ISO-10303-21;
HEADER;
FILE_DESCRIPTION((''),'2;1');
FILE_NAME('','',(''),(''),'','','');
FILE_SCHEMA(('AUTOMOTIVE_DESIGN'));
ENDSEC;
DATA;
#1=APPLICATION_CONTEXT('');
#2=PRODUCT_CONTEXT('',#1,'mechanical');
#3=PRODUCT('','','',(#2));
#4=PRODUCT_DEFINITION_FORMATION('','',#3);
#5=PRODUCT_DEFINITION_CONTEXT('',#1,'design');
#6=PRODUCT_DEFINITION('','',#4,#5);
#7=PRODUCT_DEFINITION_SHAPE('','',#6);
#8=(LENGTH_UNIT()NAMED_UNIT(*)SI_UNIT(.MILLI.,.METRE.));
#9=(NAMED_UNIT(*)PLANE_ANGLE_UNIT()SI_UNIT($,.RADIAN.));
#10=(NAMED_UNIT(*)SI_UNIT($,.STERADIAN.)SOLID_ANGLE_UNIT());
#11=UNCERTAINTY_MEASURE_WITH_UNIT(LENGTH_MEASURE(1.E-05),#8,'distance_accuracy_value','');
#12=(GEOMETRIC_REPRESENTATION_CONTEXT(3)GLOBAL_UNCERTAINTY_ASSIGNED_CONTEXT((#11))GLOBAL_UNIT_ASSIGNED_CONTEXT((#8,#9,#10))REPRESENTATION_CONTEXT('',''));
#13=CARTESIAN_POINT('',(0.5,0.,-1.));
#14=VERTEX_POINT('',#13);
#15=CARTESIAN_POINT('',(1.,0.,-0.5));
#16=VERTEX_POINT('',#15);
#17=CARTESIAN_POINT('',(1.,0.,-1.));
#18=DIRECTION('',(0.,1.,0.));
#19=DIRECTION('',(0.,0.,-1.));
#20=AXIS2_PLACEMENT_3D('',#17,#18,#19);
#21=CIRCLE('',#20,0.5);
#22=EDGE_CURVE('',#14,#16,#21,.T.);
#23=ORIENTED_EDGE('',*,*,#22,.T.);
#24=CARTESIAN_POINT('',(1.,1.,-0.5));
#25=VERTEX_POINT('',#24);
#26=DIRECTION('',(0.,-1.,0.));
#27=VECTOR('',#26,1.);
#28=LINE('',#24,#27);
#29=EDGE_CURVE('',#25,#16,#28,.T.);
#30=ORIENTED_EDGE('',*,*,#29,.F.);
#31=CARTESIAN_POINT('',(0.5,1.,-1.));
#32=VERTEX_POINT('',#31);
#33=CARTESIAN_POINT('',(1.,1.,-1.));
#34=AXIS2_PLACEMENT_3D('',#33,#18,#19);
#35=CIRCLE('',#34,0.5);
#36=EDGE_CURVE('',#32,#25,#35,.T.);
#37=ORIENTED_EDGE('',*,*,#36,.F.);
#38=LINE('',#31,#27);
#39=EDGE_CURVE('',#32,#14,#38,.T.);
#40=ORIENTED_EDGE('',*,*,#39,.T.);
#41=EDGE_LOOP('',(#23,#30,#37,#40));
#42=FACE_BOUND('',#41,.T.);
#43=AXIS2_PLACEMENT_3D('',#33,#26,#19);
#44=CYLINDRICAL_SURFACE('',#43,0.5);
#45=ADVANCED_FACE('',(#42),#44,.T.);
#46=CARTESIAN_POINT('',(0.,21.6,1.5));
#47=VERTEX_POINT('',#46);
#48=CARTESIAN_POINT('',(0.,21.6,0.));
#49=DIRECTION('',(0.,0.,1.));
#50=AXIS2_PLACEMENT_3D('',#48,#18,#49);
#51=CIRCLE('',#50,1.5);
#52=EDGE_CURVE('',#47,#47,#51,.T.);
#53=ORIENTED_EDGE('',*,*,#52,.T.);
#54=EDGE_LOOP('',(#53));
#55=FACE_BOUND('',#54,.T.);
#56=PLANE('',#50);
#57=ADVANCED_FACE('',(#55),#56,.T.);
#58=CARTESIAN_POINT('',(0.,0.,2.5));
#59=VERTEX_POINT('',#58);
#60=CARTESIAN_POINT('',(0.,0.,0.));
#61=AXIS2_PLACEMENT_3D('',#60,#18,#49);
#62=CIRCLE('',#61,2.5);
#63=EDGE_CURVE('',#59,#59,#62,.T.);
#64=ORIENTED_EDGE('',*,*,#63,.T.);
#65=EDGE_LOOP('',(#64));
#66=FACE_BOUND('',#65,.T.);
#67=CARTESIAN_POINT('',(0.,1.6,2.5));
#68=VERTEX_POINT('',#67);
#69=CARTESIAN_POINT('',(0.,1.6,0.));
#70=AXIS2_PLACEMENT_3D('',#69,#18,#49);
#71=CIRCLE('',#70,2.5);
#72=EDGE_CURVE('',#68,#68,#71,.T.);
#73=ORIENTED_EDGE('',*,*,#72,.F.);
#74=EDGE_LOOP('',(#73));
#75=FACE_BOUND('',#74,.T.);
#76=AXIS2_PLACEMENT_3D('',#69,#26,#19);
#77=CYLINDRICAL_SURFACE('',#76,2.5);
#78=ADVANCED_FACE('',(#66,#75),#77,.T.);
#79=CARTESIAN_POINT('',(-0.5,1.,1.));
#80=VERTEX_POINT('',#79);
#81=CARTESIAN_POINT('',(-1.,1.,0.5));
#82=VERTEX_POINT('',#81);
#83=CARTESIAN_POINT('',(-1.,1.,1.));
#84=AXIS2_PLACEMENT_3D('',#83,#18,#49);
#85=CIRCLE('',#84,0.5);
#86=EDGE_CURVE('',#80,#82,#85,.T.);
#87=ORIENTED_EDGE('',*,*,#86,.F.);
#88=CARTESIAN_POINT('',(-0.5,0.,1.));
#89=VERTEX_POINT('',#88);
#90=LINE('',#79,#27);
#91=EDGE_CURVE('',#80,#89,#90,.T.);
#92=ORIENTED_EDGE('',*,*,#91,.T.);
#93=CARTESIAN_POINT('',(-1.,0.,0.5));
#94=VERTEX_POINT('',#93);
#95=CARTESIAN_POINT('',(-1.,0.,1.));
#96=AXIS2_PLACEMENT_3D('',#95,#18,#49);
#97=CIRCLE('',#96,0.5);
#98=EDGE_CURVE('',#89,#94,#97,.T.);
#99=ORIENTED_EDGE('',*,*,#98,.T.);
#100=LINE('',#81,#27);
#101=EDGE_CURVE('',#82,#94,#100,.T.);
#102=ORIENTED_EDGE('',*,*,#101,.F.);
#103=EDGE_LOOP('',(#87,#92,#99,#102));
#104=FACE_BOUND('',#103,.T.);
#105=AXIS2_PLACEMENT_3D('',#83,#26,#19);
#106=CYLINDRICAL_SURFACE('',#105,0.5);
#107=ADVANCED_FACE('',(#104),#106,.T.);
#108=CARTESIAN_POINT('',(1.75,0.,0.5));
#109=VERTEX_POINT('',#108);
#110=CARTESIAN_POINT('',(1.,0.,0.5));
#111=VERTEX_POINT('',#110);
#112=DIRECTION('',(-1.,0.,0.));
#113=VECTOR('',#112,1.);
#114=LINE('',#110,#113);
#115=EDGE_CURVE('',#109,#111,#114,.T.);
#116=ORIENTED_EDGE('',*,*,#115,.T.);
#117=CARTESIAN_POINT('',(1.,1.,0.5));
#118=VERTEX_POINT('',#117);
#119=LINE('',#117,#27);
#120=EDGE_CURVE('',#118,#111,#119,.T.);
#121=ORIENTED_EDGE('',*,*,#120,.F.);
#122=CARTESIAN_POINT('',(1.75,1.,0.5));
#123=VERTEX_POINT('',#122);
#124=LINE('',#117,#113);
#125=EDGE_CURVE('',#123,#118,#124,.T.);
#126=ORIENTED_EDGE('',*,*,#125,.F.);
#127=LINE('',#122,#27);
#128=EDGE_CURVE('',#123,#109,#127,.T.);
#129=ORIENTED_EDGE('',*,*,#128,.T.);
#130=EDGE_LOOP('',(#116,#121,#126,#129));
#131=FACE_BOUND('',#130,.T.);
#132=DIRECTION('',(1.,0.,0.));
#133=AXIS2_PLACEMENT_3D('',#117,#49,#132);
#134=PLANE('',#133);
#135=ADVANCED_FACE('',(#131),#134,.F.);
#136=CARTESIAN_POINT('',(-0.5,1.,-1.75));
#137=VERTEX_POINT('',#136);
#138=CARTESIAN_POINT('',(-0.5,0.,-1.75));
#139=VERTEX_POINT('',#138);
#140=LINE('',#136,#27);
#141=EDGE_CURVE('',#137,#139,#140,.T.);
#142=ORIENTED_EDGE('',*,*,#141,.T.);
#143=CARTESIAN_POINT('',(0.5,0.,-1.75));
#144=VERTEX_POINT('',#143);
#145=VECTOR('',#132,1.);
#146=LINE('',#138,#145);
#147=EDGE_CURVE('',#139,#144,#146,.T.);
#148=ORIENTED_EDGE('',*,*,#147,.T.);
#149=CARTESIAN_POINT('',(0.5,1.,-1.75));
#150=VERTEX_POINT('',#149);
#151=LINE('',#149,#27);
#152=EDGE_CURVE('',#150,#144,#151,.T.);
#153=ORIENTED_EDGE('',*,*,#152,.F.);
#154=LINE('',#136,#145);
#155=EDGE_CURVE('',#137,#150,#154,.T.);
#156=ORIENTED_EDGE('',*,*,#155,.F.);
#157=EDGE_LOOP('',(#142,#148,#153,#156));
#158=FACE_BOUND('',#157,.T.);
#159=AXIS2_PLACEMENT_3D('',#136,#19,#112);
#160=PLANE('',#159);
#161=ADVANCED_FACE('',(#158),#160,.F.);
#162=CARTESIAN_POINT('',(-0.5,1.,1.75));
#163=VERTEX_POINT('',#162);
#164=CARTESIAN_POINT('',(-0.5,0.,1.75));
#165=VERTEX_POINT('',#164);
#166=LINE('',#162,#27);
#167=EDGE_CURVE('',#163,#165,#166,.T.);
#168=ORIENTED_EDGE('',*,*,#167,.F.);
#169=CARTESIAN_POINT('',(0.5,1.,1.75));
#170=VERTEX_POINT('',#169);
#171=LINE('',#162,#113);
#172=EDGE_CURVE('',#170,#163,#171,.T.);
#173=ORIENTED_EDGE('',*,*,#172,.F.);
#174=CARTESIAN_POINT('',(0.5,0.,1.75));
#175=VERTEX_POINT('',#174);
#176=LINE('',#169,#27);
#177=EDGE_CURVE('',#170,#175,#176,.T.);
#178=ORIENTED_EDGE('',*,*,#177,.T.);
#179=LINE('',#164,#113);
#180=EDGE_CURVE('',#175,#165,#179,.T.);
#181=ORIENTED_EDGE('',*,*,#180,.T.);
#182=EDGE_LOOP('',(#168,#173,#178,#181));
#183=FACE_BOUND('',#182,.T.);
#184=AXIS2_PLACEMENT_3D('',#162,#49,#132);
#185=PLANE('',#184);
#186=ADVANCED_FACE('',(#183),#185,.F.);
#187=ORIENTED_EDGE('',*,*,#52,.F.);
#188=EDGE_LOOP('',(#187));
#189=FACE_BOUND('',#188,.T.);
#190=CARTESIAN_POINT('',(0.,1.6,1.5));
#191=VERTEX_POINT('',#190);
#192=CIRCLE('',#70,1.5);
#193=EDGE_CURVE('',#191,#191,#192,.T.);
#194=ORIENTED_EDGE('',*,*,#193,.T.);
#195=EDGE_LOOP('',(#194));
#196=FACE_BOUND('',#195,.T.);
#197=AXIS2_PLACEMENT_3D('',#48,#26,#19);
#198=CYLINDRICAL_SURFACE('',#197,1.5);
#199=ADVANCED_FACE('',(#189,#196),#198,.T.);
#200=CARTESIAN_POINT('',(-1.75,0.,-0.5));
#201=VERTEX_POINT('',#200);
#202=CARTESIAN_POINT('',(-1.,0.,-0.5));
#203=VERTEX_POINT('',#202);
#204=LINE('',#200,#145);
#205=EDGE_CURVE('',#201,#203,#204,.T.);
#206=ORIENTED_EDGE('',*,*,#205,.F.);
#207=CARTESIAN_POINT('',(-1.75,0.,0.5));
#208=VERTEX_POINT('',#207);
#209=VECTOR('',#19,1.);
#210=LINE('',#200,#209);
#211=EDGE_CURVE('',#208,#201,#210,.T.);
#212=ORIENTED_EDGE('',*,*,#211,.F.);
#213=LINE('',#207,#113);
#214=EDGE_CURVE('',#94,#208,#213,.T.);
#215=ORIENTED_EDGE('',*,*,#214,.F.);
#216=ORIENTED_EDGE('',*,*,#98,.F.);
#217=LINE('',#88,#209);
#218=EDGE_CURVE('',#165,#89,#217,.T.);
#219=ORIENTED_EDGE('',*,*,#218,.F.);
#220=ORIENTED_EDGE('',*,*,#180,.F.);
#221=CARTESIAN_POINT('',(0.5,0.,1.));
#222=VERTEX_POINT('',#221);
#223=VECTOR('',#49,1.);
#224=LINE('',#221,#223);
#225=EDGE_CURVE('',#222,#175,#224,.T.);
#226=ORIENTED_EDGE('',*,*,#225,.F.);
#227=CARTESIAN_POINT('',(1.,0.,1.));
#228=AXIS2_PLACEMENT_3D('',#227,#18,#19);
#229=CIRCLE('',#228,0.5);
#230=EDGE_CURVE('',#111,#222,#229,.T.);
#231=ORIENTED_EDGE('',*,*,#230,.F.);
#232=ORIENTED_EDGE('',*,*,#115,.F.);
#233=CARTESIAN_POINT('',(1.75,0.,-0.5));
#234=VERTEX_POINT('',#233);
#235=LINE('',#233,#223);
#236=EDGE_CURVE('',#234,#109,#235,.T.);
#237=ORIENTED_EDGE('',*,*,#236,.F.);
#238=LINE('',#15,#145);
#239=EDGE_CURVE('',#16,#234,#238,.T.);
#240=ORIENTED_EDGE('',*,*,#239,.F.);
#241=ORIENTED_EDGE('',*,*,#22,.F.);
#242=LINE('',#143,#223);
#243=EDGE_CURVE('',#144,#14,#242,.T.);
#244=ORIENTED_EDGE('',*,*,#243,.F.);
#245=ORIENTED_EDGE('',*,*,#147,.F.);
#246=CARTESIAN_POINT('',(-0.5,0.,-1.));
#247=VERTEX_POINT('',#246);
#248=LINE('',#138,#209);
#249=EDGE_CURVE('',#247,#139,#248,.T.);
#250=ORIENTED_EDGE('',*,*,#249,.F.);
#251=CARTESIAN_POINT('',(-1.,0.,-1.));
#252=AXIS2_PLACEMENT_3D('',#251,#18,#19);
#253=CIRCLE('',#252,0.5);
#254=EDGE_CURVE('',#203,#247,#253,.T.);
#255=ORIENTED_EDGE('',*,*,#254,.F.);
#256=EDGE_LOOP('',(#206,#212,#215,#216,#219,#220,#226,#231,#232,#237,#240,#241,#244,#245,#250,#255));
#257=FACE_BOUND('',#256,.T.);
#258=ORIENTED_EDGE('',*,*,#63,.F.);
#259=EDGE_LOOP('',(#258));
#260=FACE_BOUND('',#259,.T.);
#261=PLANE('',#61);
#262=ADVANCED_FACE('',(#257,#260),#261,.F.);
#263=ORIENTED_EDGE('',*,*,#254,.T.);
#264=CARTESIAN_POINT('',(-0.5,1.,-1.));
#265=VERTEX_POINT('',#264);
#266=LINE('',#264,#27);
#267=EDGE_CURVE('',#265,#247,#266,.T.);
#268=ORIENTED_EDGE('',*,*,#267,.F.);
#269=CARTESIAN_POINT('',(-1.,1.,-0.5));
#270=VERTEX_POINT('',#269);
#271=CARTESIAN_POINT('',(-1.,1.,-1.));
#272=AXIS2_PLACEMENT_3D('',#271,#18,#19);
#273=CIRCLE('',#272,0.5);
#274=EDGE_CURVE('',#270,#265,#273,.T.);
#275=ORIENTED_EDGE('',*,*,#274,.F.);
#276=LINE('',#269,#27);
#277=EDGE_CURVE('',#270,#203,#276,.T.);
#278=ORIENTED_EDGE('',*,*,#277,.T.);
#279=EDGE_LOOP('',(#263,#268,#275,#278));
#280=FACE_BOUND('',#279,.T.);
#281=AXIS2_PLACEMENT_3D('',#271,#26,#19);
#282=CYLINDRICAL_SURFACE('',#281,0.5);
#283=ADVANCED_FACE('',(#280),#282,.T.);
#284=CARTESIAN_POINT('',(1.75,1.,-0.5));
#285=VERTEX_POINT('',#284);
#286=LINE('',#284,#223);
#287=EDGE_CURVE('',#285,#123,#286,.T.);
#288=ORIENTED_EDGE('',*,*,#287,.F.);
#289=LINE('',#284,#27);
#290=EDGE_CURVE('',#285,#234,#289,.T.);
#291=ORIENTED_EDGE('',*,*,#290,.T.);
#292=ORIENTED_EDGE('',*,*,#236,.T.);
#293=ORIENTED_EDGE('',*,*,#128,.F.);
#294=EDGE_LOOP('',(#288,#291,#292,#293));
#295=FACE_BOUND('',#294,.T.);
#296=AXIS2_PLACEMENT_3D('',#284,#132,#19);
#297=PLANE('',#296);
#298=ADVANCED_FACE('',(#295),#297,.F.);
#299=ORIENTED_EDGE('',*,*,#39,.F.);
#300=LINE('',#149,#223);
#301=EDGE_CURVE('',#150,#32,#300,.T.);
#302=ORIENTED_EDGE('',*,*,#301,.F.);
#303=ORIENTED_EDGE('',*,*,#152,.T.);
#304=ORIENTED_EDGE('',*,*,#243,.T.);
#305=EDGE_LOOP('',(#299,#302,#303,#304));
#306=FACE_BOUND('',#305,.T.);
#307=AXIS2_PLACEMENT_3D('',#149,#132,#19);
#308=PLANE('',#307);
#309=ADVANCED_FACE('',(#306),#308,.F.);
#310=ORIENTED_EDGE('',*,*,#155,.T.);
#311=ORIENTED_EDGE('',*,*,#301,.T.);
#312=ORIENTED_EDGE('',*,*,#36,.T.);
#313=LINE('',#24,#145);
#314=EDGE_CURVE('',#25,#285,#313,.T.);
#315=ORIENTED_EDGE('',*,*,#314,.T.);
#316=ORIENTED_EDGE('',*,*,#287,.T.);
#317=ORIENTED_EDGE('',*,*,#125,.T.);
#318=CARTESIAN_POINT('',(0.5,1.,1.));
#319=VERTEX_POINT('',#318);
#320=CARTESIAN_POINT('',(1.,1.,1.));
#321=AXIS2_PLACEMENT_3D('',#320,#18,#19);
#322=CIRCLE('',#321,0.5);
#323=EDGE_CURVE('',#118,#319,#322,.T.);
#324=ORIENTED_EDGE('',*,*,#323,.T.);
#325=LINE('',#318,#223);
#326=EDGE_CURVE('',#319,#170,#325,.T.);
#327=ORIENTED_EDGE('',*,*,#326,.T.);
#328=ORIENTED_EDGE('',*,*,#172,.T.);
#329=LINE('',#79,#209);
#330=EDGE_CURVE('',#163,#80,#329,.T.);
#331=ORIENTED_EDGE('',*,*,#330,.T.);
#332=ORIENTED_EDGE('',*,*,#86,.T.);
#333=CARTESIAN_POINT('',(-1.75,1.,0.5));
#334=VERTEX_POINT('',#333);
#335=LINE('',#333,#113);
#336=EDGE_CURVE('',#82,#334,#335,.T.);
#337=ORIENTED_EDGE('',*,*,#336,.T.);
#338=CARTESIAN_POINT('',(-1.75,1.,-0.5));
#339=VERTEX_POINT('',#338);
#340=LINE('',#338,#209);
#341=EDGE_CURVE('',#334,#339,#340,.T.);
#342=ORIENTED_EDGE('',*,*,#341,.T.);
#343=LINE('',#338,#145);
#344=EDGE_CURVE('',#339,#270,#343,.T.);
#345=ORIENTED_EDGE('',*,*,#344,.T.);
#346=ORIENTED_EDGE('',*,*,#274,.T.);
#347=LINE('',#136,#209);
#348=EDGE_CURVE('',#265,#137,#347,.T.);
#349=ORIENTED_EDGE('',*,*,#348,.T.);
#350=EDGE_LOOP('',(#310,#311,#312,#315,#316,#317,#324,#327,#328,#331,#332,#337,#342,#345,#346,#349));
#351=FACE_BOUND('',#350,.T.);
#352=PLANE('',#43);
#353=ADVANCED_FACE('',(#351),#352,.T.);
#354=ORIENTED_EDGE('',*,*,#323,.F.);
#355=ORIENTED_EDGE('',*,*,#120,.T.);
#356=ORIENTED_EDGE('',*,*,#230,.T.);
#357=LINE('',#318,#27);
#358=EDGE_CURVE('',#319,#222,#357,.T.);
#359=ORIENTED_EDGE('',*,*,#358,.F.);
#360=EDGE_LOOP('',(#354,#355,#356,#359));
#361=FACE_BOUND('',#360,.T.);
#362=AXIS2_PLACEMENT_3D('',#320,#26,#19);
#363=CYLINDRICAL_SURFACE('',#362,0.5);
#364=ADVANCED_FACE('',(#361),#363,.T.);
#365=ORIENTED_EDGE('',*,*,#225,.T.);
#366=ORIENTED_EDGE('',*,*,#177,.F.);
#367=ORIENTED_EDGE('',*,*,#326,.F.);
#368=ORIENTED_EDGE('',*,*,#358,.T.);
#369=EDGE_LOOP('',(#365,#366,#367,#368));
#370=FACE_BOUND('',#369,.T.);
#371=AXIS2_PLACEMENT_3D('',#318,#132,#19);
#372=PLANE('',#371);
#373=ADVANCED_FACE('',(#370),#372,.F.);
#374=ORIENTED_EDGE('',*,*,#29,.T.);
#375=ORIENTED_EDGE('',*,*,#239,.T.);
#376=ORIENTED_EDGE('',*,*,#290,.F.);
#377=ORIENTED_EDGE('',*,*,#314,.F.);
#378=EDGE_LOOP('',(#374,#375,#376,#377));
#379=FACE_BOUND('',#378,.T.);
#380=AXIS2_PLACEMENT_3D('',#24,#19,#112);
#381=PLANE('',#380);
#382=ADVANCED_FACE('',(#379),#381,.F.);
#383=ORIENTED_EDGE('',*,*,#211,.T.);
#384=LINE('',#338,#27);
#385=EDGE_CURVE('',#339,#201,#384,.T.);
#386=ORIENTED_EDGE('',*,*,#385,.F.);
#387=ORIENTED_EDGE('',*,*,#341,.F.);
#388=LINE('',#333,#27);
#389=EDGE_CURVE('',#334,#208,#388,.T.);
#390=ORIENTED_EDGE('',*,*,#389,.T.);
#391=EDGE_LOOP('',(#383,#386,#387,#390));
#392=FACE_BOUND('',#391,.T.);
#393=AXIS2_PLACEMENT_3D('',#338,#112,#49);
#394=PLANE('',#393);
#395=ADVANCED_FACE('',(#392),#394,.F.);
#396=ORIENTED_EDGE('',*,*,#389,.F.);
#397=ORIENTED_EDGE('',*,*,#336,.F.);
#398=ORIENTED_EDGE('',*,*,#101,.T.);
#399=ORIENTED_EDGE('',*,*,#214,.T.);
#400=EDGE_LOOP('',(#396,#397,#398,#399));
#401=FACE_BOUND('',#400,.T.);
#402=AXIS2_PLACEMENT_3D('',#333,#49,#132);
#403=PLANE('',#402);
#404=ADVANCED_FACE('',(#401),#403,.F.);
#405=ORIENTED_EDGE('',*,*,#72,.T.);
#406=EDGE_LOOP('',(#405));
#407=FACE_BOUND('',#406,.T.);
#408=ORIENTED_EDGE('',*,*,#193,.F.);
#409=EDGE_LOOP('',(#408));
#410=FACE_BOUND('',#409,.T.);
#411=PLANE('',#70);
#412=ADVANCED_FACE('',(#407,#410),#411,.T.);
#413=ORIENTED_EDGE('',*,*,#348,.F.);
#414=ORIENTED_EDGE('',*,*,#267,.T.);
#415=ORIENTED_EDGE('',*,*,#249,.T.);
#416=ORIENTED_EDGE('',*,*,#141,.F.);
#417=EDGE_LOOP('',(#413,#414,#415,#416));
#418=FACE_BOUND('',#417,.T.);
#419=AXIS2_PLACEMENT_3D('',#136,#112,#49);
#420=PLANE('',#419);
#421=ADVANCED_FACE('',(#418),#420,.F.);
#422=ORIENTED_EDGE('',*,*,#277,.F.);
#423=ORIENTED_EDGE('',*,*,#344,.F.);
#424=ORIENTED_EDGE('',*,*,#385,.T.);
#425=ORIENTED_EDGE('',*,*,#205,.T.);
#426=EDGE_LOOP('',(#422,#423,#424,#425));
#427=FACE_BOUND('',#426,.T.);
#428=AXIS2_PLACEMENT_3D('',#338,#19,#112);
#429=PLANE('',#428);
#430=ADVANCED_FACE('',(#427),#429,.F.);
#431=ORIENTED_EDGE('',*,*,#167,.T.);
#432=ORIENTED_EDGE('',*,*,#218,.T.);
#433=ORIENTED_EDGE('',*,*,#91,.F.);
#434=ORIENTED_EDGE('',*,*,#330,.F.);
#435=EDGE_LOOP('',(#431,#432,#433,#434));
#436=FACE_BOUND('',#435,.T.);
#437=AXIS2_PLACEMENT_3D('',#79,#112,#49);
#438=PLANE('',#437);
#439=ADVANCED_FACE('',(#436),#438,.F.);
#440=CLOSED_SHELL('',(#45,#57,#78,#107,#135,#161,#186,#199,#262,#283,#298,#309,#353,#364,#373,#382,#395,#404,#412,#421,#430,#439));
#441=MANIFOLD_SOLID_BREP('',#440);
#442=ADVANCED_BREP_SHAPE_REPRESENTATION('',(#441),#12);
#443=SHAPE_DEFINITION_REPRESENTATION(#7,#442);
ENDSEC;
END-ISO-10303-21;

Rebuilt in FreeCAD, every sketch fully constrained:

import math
import FreeCAD as App
import Part
import Sketcher
from FreeCAD import Vector

doc = App.newDocument("Part")
params = doc.addObject("Spreadsheet::Sheet", "Params")
for row, (alias, value) in enumerate([
    ("sketch1_diameter", "5 mm"),
    ("pad1_length", "1.6 mm"),
    ("sketch2_diameter", "3 mm"),
    ("pad2_length", "20 mm"),
    ("sketch3_radius", "0.5 mm"),
    ("sketch3_width", "1 mm"),
    ("sketch3_width2", "0.75 mm"),
    ("pocket1_length", "1 mm"),
], start=1):
    params.set(f"A{row}", alias)
    params.set(f"B{row}", "=" + value)
    params.setAlias(f"B{row}", alias)

body = doc.addObject("PartDesign::Body", "Body")

# Sketch on XZ plane
sketch1 = doc.addObject("Sketcher::SketchObject", "Sketch")
body.addObject(sketch1)
sketch1.AttachmentSupport = (doc.XZ_Plane, [""])
sketch1.MapMode = "FlatFace"
sketch1.addGeometry(Part.Circle(Vector(0, 0, 0), Vector(0, 0, 1), 2.5), False)
sketch1.addConstraint([
    Sketcher.Constraint("Coincident", 0, 3, -1, 1),
    Sketcher.Constraint("Diameter", 0, 5.0),
])
sketch1.setExpression("Constraints[1]", "Params.sketch1_diameter")
pad1 = doc.addObject("PartDesign::Pad", "Pad")
body.addObject(pad1)
pad1.Profile = sketch1
pad1.setExpression("Length", "Params.pad1_length")
pad1.Reversed = True

# Sketch on XZ plane
sketch2 = doc.addObject("Sketcher::SketchObject", "Sketch001")
body.addObject(sketch2)
sketch2.AttachmentSupport = (doc.XZ_Plane, [""])
sketch2.MapMode = "FlatFace"
sketch2.AttachmentOffset = App.Placement(Vector(0, 0, -1.6), App.Rotation())
sketch2.addGeometry(Part.Circle(Vector(0, 0, 0), Vector(0, 0, 1), 1.5), False)
sketch2.addConstraint([
    Sketcher.Constraint("Coincident", 0, 3, -1, 1),
    Sketcher.Constraint("Diameter", 0, 3.0),
])
sketch2.setExpression("Constraints[1]", "Params.sketch2_diameter")
pad2 = doc.addObject("PartDesign::Pad", "Pad001")
body.addObject(pad2)
pad2.Profile = sketch2
pad2.setExpression("Length", "Params.pad2_length")
pad2.Reversed = True

# Sketch on XZ plane
sketch3 = doc.addObject("Sketcher::SketchObject", "Sketch002")
body.addObject(sketch3)
sketch3.AttachmentSupport = (doc.XZ_Plane, [""])
sketch3.MapMode = "FlatFace"
sketch3.addGeometry([
    Part.LineSegment(Vector(-0.5, 1.75, 0), Vector(-0.5, 1, 0)),  # 0
    Part.ArcOfCircle(Part.Circle(Vector(-1, 1, 0), Vector(0, 0, 1), 0.5), math.radians(-90), math.radians(0)),  # 1
    Part.LineSegment(Vector(-1, 0.5, 0), Vector(-1.75, 0.5, 0)),  # 2
    Part.LineSegment(Vector(-1.75, 0.5, 0), Vector(-1.75, -0.5, 0)),  # 3
    Part.LineSegment(Vector(-1.75, -0.5, 0), Vector(-1, -0.5, 0)),  # 4
    Part.ArcOfCircle(Part.Circle(Vector(-1, -1, 0), Vector(0, 0, 1), 0.5), math.radians(0), math.radians(90)),  # 5
    Part.LineSegment(Vector(-0.5, -1, 0), Vector(-0.5, -1.75, 0)),  # 6
    Part.LineSegment(Vector(-0.5, -1.75, 0), Vector(0.5, -1.75, 0)),  # 7
    Part.LineSegment(Vector(0.5, -1.75, 0), Vector(0.5, -1, 0)),  # 8
    Part.ArcOfCircle(Part.Circle(Vector(1, -1, 0), Vector(0, 0, 1), 0.5), math.radians(90), math.radians(180)),  # 9
    Part.LineSegment(Vector(1, -0.5, 0), Vector(1.75, -0.5, 0)),  # 10
    Part.LineSegment(Vector(1.75, -0.5, 0), Vector(1.75, 0.5, 0)),  # 11
    Part.LineSegment(Vector(1.75, 0.5, 0), Vector(1, 0.5, 0)),  # 12
    Part.ArcOfCircle(Part.Circle(Vector(1, 1, 0), Vector(0, 0, 1), 0.5), math.radians(180), math.radians(270)),  # 13
    Part.LineSegment(Vector(0.5, 1, 0), Vector(0.5, 1.75, 0)),  # 14
    Part.LineSegment(Vector(0.5, 1.75, 0), Vector(-0.5, 1.75, 0)),  # 15
], False)
sketch3.addConstraint([
    Sketcher.Constraint("Tangent", 0, 2, 1, 2),
    Sketcher.Constraint("Tangent", 1, 1, 2, 1),
    Sketcher.Constraint("Coincident", 2, 2, 3, 1),
    Sketcher.Constraint("Coincident", 3, 2, 4, 1),
    Sketcher.Constraint("Tangent", 4, 2, 5, 2),
    Sketcher.Constraint("Tangent", 5, 1, 6, 1),
    Sketcher.Constraint("Coincident", 6, 2, 7, 1),
    Sketcher.Constraint("Coincident", 7, 2, 8, 1),
    Sketcher.Constraint("Tangent", 8, 2, 9, 2),
    Sketcher.Constraint("Tangent", 9, 1, 10, 1),
    Sketcher.Constraint("Coincident", 10, 2, 11, 1),
    Sketcher.Constraint("Coincident", 11, 2, 12, 1),
    Sketcher.Constraint("Tangent", 12, 2, 13, 2),
    Sketcher.Constraint("Tangent", 13, 1, 14, 1),
    Sketcher.Constraint("Coincident", 14, 2, 15, 1),
    Sketcher.Constraint("Coincident", 15, 2, 0, 1),
    Sketcher.Constraint("Vertical", 0),
    Sketcher.Constraint("Horizontal", 2),
    Sketcher.Constraint("Vertical", 3),
    Sketcher.Constraint("Horizontal", 4),
    Sketcher.Constraint("Vertical", 6),
    Sketcher.Constraint("Horizontal", 7),
    Sketcher.Constraint("Vertical", 8),
    Sketcher.Constraint("Horizontal", 10),
    Sketcher.Constraint("Vertical", 11),
    Sketcher.Constraint("Horizontal", 12),
    Sketcher.Constraint("Vertical", 14),
    Sketcher.Constraint("Horizontal", 15),
    Sketcher.Constraint("Equal", 1, 5),
    Sketcher.Constraint("Equal", 5, 9),
    Sketcher.Constraint("Equal", 9, 13),
    Sketcher.Constraint("Symmetric", 1, 3, 9, 3, -1, 1),
    Sketcher.Constraint("Symmetric", 5, 3, 13, 3, -1, 1),
    Sketcher.Constraint("Symmetric", 5, 3, 9, 3, -2),
    Sketcher.Constraint("Equal", 4, 10),
    Sketcher.Constraint("Equal", 12, 0),
    Sketcher.Constraint("Equal", 15, 3),
    Sketcher.Constraint("Equal", 0, 6),
    Sketcher.Constraint("Radius", 1, 0.5),
    Sketcher.Constraint("DistanceX", 7, 1, 7, 2, 1.0),
    Sketcher.Constraint("DistanceX", 2, 2, 2, 1, 0.75),
])
sketch3.setExpression("Constraints[38]", "Params.sketch3_radius")
sketch3.setExpression("Constraints[39]", "Params.sketch3_width")
sketch3.setExpression("Constraints[40]", "Params.sketch3_width2")
pocket1 = doc.addObject("PartDesign::Pocket", "Pocket")
body.addObject(pocket1)
pocket1.Profile = sketch3
pocket1.setExpression("Length", "Params.pocket1_length")

doc.recompute()
